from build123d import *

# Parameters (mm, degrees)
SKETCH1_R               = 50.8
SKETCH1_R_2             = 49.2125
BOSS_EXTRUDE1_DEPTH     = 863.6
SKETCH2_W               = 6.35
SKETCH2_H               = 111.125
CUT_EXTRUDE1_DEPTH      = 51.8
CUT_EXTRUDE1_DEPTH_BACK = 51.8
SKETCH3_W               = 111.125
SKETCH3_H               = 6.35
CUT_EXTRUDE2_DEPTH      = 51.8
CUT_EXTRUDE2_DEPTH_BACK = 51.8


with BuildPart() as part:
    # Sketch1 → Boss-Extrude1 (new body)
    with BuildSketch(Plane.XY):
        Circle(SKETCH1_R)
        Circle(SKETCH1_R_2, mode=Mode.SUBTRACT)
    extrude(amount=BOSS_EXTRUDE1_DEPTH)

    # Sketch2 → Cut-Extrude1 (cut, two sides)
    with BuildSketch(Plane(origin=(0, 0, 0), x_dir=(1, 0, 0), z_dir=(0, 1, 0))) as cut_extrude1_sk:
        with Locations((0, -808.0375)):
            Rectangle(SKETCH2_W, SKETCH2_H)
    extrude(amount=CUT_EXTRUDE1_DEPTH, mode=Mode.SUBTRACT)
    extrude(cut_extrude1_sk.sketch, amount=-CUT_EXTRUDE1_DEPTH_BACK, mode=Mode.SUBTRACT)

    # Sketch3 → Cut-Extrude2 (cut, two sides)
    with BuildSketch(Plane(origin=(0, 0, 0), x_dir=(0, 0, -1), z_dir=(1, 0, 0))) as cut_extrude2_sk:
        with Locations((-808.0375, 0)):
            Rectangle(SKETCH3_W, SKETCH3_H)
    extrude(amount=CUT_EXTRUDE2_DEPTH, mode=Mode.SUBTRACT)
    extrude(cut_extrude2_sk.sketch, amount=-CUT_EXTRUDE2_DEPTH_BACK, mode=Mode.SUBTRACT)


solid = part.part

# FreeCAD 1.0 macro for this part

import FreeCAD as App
import Part
import Sketcher
from FreeCAD import Vector
Q = App.Units.Quantity

doc = App.newDocument("Part")
body = doc.addObject("PartDesign::Body", "Body")

sketch1 = doc.addObject("Sketcher::SketchObject", "Sketch")
body.addObject(sketch1)
sketch1.AttachmentSupport = (doc.XY_Plane, [""])
sketch1.MapMode = "FlatFace"
sketch1.addGeometry(Part.Circle(Vector(0, 0, 0), Vector(0, 0, 1), 50.8), False)
sketch1.addGeometry(Part.Circle(Vector(0, 0, 0), Vector(0, 0, 1), 49.2125), False)
sketch1.addConstraint(Sketcher.Constraint("Coincident", 0, 3, -1, 1))
sketch1.addConstraint(Sketcher.Constraint("Coincident", 1, 3, -1, 1))
sketch1.addConstraint(Sketcher.Constraint("Diameter", 0, Q("4 in")))
sketch1.addConstraint(Sketcher.Constraint("Diameter", 1, Q("3.875 in")))
pad1 = doc.addObject("PartDesign::Pad", "Pad")
body.addObject(pad1)
pad1.Profile = sketch1
pad1.Length = Q("34 in")

sketch2 = doc.addObject("Sketcher::SketchObject", "Sketch001")
body.addObject(sketch2)
sketch2.AttachmentSupport = (doc.XZ_Plane, [""])
sketch2.MapMode = "FlatFace"
sketch2.addGeometry(Part.LineSegment(Vector(-3.175, 752.475, 0), Vector(-3.175, 863.6, 0)), False)
sketch2.addGeometry(Part.LineSegment(Vector(-3.175, 863.6, 0), Vector(3.175, 863.6, 0)), False)
sketch2.addGeometry(Part.LineSegment(Vector(3.175, 863.6, 0), Vector(3.175, 752.475, 0)), False)
sketch2.addGeometry(Part.LineSegment(Vector(3.175, 752.475, 0), Vector(-3.175, 752.475, 0)), False)
sketch2.addConstraint(Sketcher.Constraint("Coincident", 0, 2, 1, 1))
sketch2.addConstraint(Sketcher.Constraint("Coincident", 1, 2, 2, 1))
sketch2.addConstraint(Sketcher.Constraint("Coincident", 2, 2, 3, 1))
sketch2.addConstraint(Sketcher.Constraint("Coincident", 3, 2, 0, 1))
sketch2.addConstraint(Sketcher.Constraint("Vertical", 0))
sketch2.addConstraint(Sketcher.Constraint("Horizontal", 1))
sketch2.addConstraint(Sketcher.Constraint("Vertical", 2))
sketch2.addConstraint(Sketcher.Constraint("Horizontal", 3))
sketch2.addConstraint(Sketcher.Constraint("DistanceY", -1, 1, 0, 2, Q("34 in")))
sketch2.addConstraint(Sketcher.Constraint("DistanceX", 1, 1, 1, 2, Q("0.25 in")))
sketch2.addConstraint(Sketcher.Constraint("DistanceY", 0, 1, 0, 2, Q("4.375 in")))
sketch2.addConstraint(Sketcher.Constraint("DistanceX", 0, 2, -1, 1, Q("0.125 in")))
pocket1 = doc.addObject("PartDesign::Pocket", "Pocket")
body.addObject(pocket1)
pocket1.Profile = sketch2
pocket1.Type = "ThroughAll"
pocket1.Midplane = True

sketch3 = doc.addObject("Sketcher::SketchObject", "Sketch002")
body.addObject(sketch3)
sketch3.AttachmentSupport = (doc.YZ_Plane, [""])
sketch3.MapMode = "FlatFace"
sketch3.addGeometry(Part.LineSegment(Vector(3.175, 863.6, 0), Vector(-3.175, 863.6, 0)), False)
sketch3.addGeometry(Part.LineSegment(Vector(-3.175, 863.6, 0), Vector(-3.175, 752.475, 0)), False)
sketch3.addGeometry(Part.LineSegment(Vector(-3.175, 752.475, 0), Vector(3.175, 752.475, 0)), False)
sketch3.addGeometry(Part.LineSegment(Vector(3.175, 752.475, 0), Vector(3.175, 863.6, 0)), False)
sketch3.addConstraint(Sketcher.Constraint("Coincident", 0, 2, 1, 1))
sketch3.addConstraint(Sketcher.Constraint("Coincident", 1, 2, 2, 1))
sketch3.addConstraint(Sketcher.Constraint("Coincident", 2, 2, 3, 1))
sketch3.addConstraint(Sketcher.Constraint("Coincident", 3, 2, 0, 1))
sketch3.addConstraint(Sketcher.Constraint("Horizontal", 0))
sketch3.addConstraint(Sketcher.Constraint("Vertical", 1))
sketch3.addConstraint(Sketcher.Constraint("Horizontal", 2))
sketch3.addConstraint(Sketcher.Constraint("Vertical", 3))
sketch3.addConstraint(Sketcher.Constraint("DistanceY", -1, 1, 0, 2, Q("34 in")))
sketch3.addConstraint(Sketcher.Constraint("DistanceX", 0, 2, 0, 1, Q("0.25 in")))
sketch3.addConstraint(Sketcher.Constraint("DistanceY", 1, 2, 1, 1, Q("4.375 in")))
sketch3.addConstraint(Sketcher.Constraint("DistanceX", 0, 2, -1, 1, Q("0.125 in")))
pocket2 = doc.addObject("PartDesign::Pocket", "Pocket001")
body.addObject(pocket2)
pocket2.Profile = sketch3
pocket2.Type = "ThroughAll"
pocket2.Midplane = True

doc.recompute()
